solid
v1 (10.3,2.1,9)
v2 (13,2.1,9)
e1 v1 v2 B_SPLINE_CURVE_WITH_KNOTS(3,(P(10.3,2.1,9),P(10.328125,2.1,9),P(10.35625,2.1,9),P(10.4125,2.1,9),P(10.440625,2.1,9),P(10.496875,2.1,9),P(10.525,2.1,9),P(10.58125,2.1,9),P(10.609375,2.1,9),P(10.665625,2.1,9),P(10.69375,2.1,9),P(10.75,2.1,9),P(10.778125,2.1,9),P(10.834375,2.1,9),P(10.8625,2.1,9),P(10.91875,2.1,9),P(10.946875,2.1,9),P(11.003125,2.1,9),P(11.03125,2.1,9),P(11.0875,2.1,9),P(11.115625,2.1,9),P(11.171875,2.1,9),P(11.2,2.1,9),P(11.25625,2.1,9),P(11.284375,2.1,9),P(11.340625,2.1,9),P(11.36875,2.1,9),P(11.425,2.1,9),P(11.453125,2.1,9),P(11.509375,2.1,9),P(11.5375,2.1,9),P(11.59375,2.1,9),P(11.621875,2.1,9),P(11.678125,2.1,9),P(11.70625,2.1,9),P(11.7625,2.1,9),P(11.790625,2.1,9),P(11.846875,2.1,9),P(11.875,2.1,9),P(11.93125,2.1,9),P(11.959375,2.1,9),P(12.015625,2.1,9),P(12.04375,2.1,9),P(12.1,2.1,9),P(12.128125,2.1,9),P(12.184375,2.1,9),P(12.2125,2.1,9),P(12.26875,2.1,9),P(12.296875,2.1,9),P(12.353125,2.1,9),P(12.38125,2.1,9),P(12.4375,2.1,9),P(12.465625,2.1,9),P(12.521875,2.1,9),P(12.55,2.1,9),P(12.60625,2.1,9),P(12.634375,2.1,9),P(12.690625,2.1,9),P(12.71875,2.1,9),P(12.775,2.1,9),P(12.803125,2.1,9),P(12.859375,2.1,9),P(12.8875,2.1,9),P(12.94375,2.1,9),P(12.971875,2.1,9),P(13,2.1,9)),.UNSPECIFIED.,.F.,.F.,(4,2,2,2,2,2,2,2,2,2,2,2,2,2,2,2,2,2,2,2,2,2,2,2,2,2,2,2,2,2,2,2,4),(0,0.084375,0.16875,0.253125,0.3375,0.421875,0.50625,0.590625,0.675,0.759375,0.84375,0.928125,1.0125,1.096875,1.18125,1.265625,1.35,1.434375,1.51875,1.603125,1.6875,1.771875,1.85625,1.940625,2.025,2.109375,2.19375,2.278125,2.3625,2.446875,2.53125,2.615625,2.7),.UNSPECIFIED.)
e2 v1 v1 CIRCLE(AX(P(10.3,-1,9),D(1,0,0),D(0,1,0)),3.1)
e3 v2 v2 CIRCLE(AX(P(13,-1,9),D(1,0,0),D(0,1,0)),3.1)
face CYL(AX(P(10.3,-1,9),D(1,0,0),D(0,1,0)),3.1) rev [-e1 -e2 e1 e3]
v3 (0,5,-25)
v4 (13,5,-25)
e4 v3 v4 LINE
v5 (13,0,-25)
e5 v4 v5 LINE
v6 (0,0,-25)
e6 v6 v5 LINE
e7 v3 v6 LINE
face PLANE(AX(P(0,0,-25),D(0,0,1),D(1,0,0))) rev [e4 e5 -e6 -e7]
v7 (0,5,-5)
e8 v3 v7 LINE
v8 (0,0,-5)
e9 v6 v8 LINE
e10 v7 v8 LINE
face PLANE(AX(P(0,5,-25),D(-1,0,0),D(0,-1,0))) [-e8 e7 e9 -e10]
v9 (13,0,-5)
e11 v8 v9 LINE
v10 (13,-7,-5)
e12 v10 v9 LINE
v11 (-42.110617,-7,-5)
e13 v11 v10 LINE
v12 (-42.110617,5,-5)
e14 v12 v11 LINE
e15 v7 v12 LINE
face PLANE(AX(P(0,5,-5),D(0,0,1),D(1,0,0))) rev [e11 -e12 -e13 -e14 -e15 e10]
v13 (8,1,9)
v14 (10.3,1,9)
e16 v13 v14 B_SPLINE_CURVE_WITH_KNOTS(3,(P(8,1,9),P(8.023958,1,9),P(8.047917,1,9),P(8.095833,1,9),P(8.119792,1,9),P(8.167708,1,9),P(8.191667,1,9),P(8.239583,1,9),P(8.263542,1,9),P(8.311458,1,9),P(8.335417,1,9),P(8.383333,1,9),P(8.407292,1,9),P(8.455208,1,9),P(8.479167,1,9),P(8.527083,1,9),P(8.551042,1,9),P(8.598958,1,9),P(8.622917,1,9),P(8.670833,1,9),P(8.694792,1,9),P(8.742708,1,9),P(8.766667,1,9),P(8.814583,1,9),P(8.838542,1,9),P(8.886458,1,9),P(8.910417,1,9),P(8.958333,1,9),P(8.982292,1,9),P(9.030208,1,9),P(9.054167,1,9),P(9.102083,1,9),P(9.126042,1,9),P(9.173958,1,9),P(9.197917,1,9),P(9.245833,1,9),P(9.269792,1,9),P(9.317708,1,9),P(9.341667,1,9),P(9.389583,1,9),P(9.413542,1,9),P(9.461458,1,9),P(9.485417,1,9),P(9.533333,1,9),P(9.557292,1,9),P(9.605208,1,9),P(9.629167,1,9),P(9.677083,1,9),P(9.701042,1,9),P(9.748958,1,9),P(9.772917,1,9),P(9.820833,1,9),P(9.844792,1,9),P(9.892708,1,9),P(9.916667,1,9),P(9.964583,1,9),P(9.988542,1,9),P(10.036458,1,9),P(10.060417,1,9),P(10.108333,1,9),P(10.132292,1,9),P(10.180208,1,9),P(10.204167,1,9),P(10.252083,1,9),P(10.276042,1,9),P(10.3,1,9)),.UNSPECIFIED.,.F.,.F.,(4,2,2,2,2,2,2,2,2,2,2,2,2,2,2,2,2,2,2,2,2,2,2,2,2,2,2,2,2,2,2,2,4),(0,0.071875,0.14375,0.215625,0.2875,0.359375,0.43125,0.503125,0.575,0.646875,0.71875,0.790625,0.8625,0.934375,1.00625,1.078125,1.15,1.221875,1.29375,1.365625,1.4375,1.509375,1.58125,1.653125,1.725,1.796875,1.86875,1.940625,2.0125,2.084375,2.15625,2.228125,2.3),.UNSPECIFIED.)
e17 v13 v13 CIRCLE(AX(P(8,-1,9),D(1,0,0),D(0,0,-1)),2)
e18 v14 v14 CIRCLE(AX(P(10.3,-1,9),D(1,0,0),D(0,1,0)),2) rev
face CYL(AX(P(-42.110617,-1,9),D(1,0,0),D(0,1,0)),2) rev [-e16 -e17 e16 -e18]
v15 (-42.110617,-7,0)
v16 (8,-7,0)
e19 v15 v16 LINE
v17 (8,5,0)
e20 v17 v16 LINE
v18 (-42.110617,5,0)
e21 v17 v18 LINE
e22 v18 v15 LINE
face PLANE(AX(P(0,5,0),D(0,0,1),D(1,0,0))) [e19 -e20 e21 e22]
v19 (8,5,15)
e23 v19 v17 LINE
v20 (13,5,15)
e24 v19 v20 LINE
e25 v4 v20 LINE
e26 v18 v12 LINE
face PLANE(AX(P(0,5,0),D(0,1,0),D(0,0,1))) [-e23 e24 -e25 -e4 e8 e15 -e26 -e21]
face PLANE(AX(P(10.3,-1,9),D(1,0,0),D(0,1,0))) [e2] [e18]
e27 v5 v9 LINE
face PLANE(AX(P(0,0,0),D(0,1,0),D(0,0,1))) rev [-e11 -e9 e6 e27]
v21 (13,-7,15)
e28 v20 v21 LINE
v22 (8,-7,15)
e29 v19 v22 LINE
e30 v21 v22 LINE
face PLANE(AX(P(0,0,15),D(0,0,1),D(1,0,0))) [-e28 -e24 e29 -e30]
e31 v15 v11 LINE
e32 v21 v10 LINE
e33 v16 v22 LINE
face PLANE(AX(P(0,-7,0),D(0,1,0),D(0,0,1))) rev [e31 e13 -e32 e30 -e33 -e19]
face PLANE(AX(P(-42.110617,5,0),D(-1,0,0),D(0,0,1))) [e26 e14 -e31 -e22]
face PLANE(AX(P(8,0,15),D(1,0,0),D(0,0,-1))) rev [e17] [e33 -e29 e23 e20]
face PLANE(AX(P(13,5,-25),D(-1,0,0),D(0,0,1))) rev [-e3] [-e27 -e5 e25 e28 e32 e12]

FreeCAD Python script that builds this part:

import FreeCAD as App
import Part
import Sketcher
from FreeCAD import Vector

doc = App.newDocument("Part")
params = doc.addObject("Spreadsheet::Sheet", "Params")
for row, (alias, value) in enumerate([
    ("sketch1_height", "5 mm"),
    ("pad1_length", "5 mm"),
    ("sketch2_width", "13 mm"),
    ("sketch2_height", "5 mm"),
    ("pad2_length", "25 mm"),
    ("sketch3_width", "5 mm"),
    ("pad3_length", "15 mm"),
    ("sketch4_width", "5 mm"),
    ("sketch4_height", "20 mm"),
    ("pad4_length", "7 mm"),
    ("sketch5_diameter", "4 mm"),
    ("sketch6_diameter", "6.2 mm"),
    ("pocket2_length", "2.7 mm"),
], start=1):
    params.set(f"A{row}", alias)
    params.set(f"B{row}", "=" + value)
    params.setAlias(f"B{row}", alias)

body = doc.addObject("PartDesign::Body", "Body")

sketch1 = doc.addObject("Sketcher::SketchObject", "Sketch")
body.addObject(sketch1)
sketch1.AttachmentSupport = (doc.XZ_Plane, [""])
sketch1.MapMode = "FlatFace"
sketch1.addGeometry(Part.LineSegment(Vector(-42, -5, 0), Vector(-42, 0, 0)), False)
sketch1.addGeometry(Part.LineSegment(Vector(-42, 0, 0), Vector(0, 0, 0)), False)
sketch1.addGeometry(Part.LineSegment(Vector(0, 0, 0), Vector(0, -5, 0)), False)
sketch1.addGeometry(Part.LineSegment(Vector(0, -5, 0), Vector(-42, -5, 0)), False)
sketch1.addConstraint(Sketcher.Constraint("Coincident", 0, 2, 1, 1))
sketch1.addConstraint(Sketcher.Constraint("Coincident", 1, 2, 2, 1))
sketch1.addConstraint(Sketcher.Constraint("Coincident", 2, 2, 3, 1))
sketch1.addConstraint(Sketcher.Constraint("Coincident", 3, 2, 0, 1))
sketch1.addConstraint(Sketcher.Constraint("Vertical", 0))
sketch1.addConstraint(Sketcher.Constraint("Horizontal", 1))
sketch1.addConstraint(Sketcher.Constraint("Vertical", 2))
sketch1.addConstraint(Sketcher.Constraint("Horizontal", 3))
sketch1.addConstraint(Sketcher.Constraint("Coincident", 1, 2, -1, 1))
sketch1.addConstraint(Sketcher.Constraint("DistanceY", 0, 1, 0, 2, 5.0))
sketch1.addConstraint(Sketcher.Constraint("DistanceX", 1, 1, 1, 2, 42.110617))
sketch1.setExpression("Constraints[9]", "Params.sketch1_height")
pad1 = doc.addObject("PartDesign::Pad", "Pad")
body.addObject(pad1)
pad1.Profile = sketch1
pad1.setExpression("Length", "Params.pad1_length")
pad1.Reversed = True

sketch2 = doc.addObject("Sketcher::SketchObject", "Sketch001")
body.addObject(sketch2)
sketch2.AttachmentSupport = (doc.XY_Plane, [""])
sketch2.MapMode = "FlatFace"
sketch2.addGeometry(Part.LineSegment(Vector(13, 5, 0), Vector(13, 0, 0)), False)
sketch2.addGeometry(Part.LineSegment(Vector(13, 0, 0), Vector(0, 0, 0)), False)
sketch2.addGeometry(Part.LineSegment(Vector(0, 0, 0), Vector(0, 5, 0)), False)
sketch2.addGeometry(Part.LineSegment(Vector(0, 5, 0), Vector(13, 5, 0)), False)
sketch2.addConstraint(Sketcher.Constraint("Coincident", 0, 2, 1, 1))
sketch2.addConstraint(Sketcher.Constraint("Coincident", 1, 2, 2, 1))
sketch2.addConstraint(Sketcher.Constraint("Coincident", 2, 2, 3, 1))
sketch2.addConstraint(Sketcher.Constraint("Coincident", 3, 2, 0, 1))
sketch2.addConstraint(Sketcher.Constraint("Vertical", 0))
sketch2.addConstraint(Sketcher.Constraint("Horizontal", 1))
sketch2.addConstraint(Sketcher.Constraint("Vertical", 2))
sketch2.addConstraint(Sketcher.Constraint("Horizontal", 3))
sketch2.addConstraint(Sketcher.Constraint("Coincident", 1, 2, -1, 1))
sketch2.addConstraint(Sketcher.Constraint("DistanceX", 1, 2, 1, 1, 13.0))
sketch2.addConstraint(Sketcher.Constraint("DistanceY", 0, 2, 0, 1, 5.0))
sketch2.setExpression("Constraints[9]", "Params.sketch2_width")
sketch2.setExpression("Constraints[10]", "Params.sketch2_height")
pad2 = doc.addObject("PartDesign::Pad", "Pad001")
body.addObject(pad2)
pad2.Profile = sketch2
pad2.setExpression("Length", "Params.pad2_length")
pad2.Reversed = True

sketch3 = doc.addObject("Sketcher::SketchObject", "Sketch002")
body.addObject(sketch3)
sketch3.AttachmentSupport = (doc.XY_Plane, [""])
sketch3.MapMode = "FlatFace"
sketch3.addGeometry(Part.LineSegment(Vector(13, 5, 0), Vector(13, 0, 0)), False)
sketch3.addGeometry(Part.LineSegment(Vector(13, 0, 0), Vector(8, 0, 0)), False)
sketch3.addGeometry(Part.LineSegment(Vector(8, 0, 0), Vector(8, 5, 0)), False)
sketch3.addGeometry(Part.LineSegment(Vector(8, 5, 0), Vector(13, 5, 0)), False)
sketch3.addConstraint(Sketcher.Constraint("Coincident", 0, 2, 1, 1))
sketch3.addConstraint(Sketcher.Constraint("Coincident", 1, 2, 2, 1))
sketch3.addConstraint(Sketcher.Constraint("Coincident", 2, 2, 3, 1))
sketch3.addConstraint(Sketcher.Constraint("Coincident", 3, 2, 0, 1))
sketch3.addConstraint(Sketcher.Constraint("Vertical", 0))
sketch3.addConstraint(Sketcher.Constraint("Horizontal", 1))
sketch3.addConstraint(Sketcher.Constraint("Vertical", 2))
sketch3.addConstraint(Sketcher.Constraint("Horizontal", 3))
sketch3.addConstraint(Sketcher.Constraint("PointOnObject", 0, 2, -1))
sketch3.addConstraint(Sketcher.Constraint("Equal", 3, 0))
sketch3.addConstraint(Sketcher.Constraint("DistanceX", 1, 2, 1, 1, 5.0))
sketch3.addConstraint(Sketcher.Constraint("DistanceX", -1, 1, 0, 2, 13.0))
sketch3.setExpression("Constraints[10]", "Params.sketch3_width")
pad3 = doc.addObject("PartDesign::Pad", "Pad002")
body.addObject(pad3)
pad3.Profile = sketch3
pad3.setExpression("Length", "Params.pad3_length")

sketch4 = doc.addObject("Sketcher::SketchObject", "Sketch003")
body.addObject(sketch4)
sketch4.AttachmentSupport = (doc.XZ_Plane, [""])
sketch4.MapMode = "FlatFace"
sketch4.addGeometry(Part.LineSegment(Vector(-42, 0, 0), Vector(-42, -5, 0)), False)
sketch4.addGeometry(Part.LineSegment(Vector(-42, -5, 0), Vector(13, -5, 0)), False)
sketch4.addGeometry(Part.LineSegment(Vector(13, -5, 0), Vector(13, 15, 0)), False)
sketch4.addGeometry(Part.LineSegment(Vector(13, 15, 0), Vector(8, 15, 0)), False)
sketch4.addGeometry(Part.LineSegment(Vector(8, 15, 0), Vector(8, 0, 0)), False)
sketch4.addGeometry(Part.LineSegment(Vector(8, 0, 0), Vector(-42, 0, 0)), False)
sketch4.addConstraint(Sketcher.Constraint("Coincident", 0, 2, 1, 1))
sketch4.addConstraint(Sketcher.Constraint("Coincident", 1, 2, 2, 1))
sketch4.addConstraint(Sketcher.Constraint("Coincident", 2, 2, 3, 1))
sketch4.addConstraint(Sketcher.Constraint("Coincident", 3, 2, 4, 1))
sketch4.addConstraint(Sketcher.Constraint("Coincident", 4, 2, 5, 1))
sketch4.addConstraint(Sketcher.Constraint("Coincident", 5, 2, 0, 1))
sketch4.addConstraint(Sketcher.Constraint("Vertical", 0))
sketch4.addConstraint(Sketcher.Constraint("Horizontal", 1))
sketch4.addConstraint(Sketcher.Constraint("Vertical", 2))
sketch4.addConstraint(Sketcher.Constraint("Horizontal", 3))
sketch4.addConstraint(Sketcher.Constraint("Vertical", 4))
sketch4.addConstraint(Sketcher.Constraint("Horizontal", 5))
sketch4.addConstraint(Sketcher.Constraint("PointOnObject", 4, 2, -1))
sketch4.addConstraint(Sketcher.Constraint("Equal", 3, 0))
sketch4.addConstraint(Sketcher.Constraint("DistanceX", 3, 2, 3, 1, 5.0))
sketch4.addConstraint(Sketcher.Constraint("DistanceY", 2, 1, 2, 2, 20.0))
sketch4.addConstraint(Sketcher.Constraint("DistanceX", -1, 1, 1, 2, 13.0))
sketch4.addConstraint(Sketcher.Constraint("DistanceX", 1, 1, 1, 2, 55.110617))
sketch4.setExpression("Constraints[14]", "Params.sketch4_width")
sketch4.setExpression("Constraints[15]", "Params.sketch4_height")
pad4 = doc.addObject("PartDesign::Pad", "Pad003")
body.addObject(pad4)
pad4.Profile = sketch4
pad4.setExpression("Length", "Params.pad4_length")

sketch5 = doc.addObject("Sketcher::SketchObject", "Sketch004")
body.addObject(sketch5)
sketch5.AttachmentSupport = (doc.YZ_Plane, [""])
sketch5.MapMode = "FlatFace"
sketch5.AttachmentOffset = App.Placement(Vector(0, 0, 13), App.Rotation())
sketch5.addGeometry(Part.Circle(Vector(-1, 9, 0), Vector(0, 0, 1), 2), False)
sketch5.addConstraint(Sketcher.Constraint("Diameter", 0, 4.0))
sketch5.addConstraint(Sketcher.Constraint("DistanceX", 0, 3, -1, 1, 1.0))
sketch5.addConstraint(Sketcher.Constraint("DistanceY", -1, 1, 0, 3, 9.0))
sketch5.setExpression("Constraints[0]", "Params.sketch5_diameter")
pocket1 = doc.addObject("PartDesign::Pocket", "Pocket")
body.addObject(pocket1)
pocket1.Profile = sketch5
pocket1.Type = "ThroughAll"

sketch6 = doc.addObject("Sketcher::SketchObject", "Sketch005")
body.addObject(sketch6)
sketch6.AttachmentSupport = (doc.YZ_Plane, [""])
sketch6.MapMode = "FlatFace"
sketch6.AttachmentOffset = App.Placement(Vector(0, 0, 13), App.Rotation())
sketch6.addGeometry(Part.Circle(Vector(-1, 9, 0), Vector(0, 0, 1), 3.1), False)
sketch6.addConstraint(Sketcher.Constraint("Diameter", 0, 6.2))
sketch6.addConstraint(Sketcher.Constraint("DistanceX", 0, 3, -1, 1, 1.0))
sketch6.addConstraint(Sketcher.Constraint("DistanceY", -1, 1, 0, 3, 9.0))
sketch6.setExpression("Constraints[0]", "Params.sketch6_diameter")
pocket2 = doc.addObject("PartDesign::Pocket", "Pocket001")
body.addObject(pocket2)
pocket2.Profile = sketch6
pocket2.setExpression("Length", "Params.pocket2_length")

doc.recompute()
